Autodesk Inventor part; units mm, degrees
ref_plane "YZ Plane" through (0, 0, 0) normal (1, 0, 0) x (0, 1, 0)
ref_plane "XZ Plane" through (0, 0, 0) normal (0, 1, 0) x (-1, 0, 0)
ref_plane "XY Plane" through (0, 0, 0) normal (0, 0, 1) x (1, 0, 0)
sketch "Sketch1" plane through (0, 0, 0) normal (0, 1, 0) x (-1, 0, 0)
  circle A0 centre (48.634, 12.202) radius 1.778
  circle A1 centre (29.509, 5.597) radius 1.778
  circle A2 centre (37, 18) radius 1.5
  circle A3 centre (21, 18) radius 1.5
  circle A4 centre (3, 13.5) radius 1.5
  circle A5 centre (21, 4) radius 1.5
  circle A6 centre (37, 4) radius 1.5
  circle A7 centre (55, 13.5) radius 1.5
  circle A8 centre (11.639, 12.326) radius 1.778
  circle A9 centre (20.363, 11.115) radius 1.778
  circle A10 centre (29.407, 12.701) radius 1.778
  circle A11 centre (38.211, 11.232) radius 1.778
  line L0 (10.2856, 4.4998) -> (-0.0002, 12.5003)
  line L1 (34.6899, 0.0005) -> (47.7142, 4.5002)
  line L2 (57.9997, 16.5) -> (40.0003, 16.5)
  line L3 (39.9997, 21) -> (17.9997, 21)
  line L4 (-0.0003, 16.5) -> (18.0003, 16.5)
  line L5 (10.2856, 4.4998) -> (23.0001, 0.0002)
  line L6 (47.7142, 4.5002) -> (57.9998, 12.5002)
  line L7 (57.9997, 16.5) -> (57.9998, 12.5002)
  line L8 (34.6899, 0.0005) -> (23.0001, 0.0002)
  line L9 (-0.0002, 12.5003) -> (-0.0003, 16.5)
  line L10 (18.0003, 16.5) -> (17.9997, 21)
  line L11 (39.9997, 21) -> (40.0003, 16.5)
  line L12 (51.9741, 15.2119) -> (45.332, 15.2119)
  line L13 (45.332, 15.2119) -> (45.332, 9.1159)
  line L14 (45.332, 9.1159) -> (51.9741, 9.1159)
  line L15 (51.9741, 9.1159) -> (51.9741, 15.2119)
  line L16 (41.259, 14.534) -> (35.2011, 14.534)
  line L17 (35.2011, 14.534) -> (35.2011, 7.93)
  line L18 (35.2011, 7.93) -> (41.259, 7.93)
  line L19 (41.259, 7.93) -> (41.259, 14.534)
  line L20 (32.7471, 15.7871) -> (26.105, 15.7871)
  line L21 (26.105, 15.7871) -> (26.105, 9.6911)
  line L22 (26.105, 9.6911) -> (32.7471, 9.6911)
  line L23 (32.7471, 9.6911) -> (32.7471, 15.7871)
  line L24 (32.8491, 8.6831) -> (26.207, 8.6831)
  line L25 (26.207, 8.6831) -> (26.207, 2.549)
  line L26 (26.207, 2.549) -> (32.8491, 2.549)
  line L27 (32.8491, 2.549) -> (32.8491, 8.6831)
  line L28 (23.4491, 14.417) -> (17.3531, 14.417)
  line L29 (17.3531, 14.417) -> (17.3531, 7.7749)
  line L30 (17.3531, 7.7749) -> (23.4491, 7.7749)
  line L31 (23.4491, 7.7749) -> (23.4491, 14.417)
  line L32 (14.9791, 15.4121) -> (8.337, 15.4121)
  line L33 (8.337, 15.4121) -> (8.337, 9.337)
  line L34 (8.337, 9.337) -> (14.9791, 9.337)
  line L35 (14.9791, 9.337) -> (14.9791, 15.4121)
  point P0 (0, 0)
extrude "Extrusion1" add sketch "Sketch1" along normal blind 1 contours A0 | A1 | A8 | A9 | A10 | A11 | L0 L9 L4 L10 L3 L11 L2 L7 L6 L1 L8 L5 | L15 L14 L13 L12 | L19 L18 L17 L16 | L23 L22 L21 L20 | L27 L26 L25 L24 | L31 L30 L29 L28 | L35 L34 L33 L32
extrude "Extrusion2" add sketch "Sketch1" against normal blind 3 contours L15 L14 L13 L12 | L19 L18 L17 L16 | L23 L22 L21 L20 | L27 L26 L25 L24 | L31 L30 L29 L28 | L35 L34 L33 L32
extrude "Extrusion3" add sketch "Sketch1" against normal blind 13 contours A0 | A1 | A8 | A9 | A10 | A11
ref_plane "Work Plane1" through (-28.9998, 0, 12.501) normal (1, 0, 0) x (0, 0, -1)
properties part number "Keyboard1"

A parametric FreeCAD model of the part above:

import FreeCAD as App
import Part
import Sketcher
Q = App.Units.Quantity

doc = App.newDocument("Part")
body = doc.addObject("PartDesign::Body", "Body")

# Sketch on XZ plane
sketch1 = doc.addObject("Sketcher::SketchObject", "Sketch")
body.addObject(sketch1)
sketch1.AttachmentSupport = (doc.XZ_Plane, [""])
sketch1.MapMode = "FlatFace"
sketch1.addGeometry([
    Part.LineSegment(App.Vector(0, 12.5, 0), App.Vector(-10.3, 4.5, 0)),  # 0
    Part.LineSegment(App.Vector(-10.3, 4.5, 0), App.Vector(-23, 0, 0)),  # 1
    Part.LineSegment(App.Vector(-23, 0, 0), App.Vector(-34.7, 0, 0)),  # 2
    Part.LineSegment(App.Vector(-34.7, 0, 0), App.Vector(-47.7, 4.5, 0)),  # 3
    Part.LineSegment(App.Vector(-47.7, 4.5, 0), App.Vector(-58, 12.5, 0)),  # 4
    Part.LineSegment(App.Vector(-58, 12.5, 0), App.Vector(-58, 16.5, 0)),  # 5
    Part.LineSegment(App.Vector(-58, 16.5, 0), App.Vector(-40, 16.5, 0)),  # 6
    Part.LineSegment(App.Vector(-40, 16.5, 0), App.Vector(-40, 21, 0)),  # 7
    Part.LineSegment(App.Vector(-40, 21, 0), App.Vector(-18, 21, 0)),  # 8
    Part.LineSegment(App.Vector(-18, 21, 0), App.Vector(-18, 16.5, 0)),  # 9
    Part.LineSegment(App.Vector(-18, 16.5, 0), App.Vector(0, 16.5, 0)),  # 10
    Part.LineSegment(App.Vector(0, 16.5, 0), App.Vector(0, 12.5, 0)),  # 11
    Part.Circle(App.Vector(-21, 4, 0), App.Vector(0, 0, 1), 1.5),  # 12
    Part.Circle(App.Vector(-37, 4, 0), App.Vector(0, 0, 1), 1.5),  # 13
    Part.Circle(App.Vector(-3, 13.5, 0), App.Vector(0, 0, 1), 1.5),  # 14
    Part.Circle(App.Vector(-21, 18, 0), App.Vector(0, 0, 1), 1.5),  # 15
    Part.Circle(App.Vector(-55, 13.5, 0), App.Vector(0, 0, 1), 1.5),  # 16
    Part.Circle(App.Vector(-37, 18, 0), App.Vector(0, 0, 1), 1.5),  # 17
], False)
sketch1.addConstraint([
    Sketcher.Constraint("Coincident", 0, 2, 1, 1),
    Sketcher.Constraint("Coincident", 1, 2, 2, 1),
    Sketcher.Constraint("Coincident", 2, 2, 3, 1),
    Sketcher.Constraint("Coincident", 3, 2, 4, 1),
    Sketcher.Constraint("Coincident", 4, 2, 5, 1),
    Sketcher.Constraint("Coincident", 5, 2, 6, 1),
    Sketcher.Constraint("Coincident", 6, 2, 7, 1),
    Sketcher.Constraint("Coincident", 7, 2, 8, 1),
    Sketcher.Constraint("Coincident", 8, 2, 9, 1),
    Sketcher.Constraint("Coincident", 9, 2, 10, 1),
    Sketcher.Constraint("Coincident", 10, 2, 11, 1),
    Sketcher.Constraint("Coincident", 11, 2, 0, 1),
    Sketcher.Constraint("Vertical", 5),
    Sketcher.Constraint("Horizontal", 6),
    Sketcher.Constraint("Horizontal", 8),
    Sketcher.Constraint("Horizontal", 10),
    Sketcher.Constraint("Vertical", 11),
    Sketcher.Constraint("Equal", 12, 13),
    Sketcher.Constraint("Equal", 13, 14),
    Sketcher.Constraint("Equal", 14, 15),
    Sketcher.Constraint("Equal", 15, 16),
    Sketcher.Constraint("Equal", 16, 17),
    Sketcher.Constraint("Perpendicular", 2, 7),
    Sketcher.Constraint("Parallel", 7, 9),
    Sketcher.Constraint("Horizontal", 12, 3, 13, 3),
    Sketcher.Constraint("Horizontal", 14, 3, 16, 3),
    Sketcher.Constraint("Horizontal", 15, 3, 17, 3),
    Sketcher.Constraint("Horizontal", 6, 2, 9, 2),
    Sketcher.Constraint("Horizontal", 4, 2, 11, 2),
    Sketcher.Constraint("Vertical", 12, 3, 15, 3),
    Sketcher.Constraint("Vertical", 13, 3, 17, 3),
    Sketcher.Constraint("DistanceY", -1, 1, 1, 2, Q("0 in")),
    Sketcher.Constraint("DistanceX", -1, 1, 10, 2, Q("0 in")),
    Sketcher.Constraint("DistanceY", 1, 2, 2, 2, Q("0 in")),
    Sketcher.Constraint("Diameter", 12, Q("0.1181 in")),
    Sketcher.Constraint("Angle", 3, Q("160.9407 deg")),
    Sketcher.Constraint("Distance", 1, Q("0.531 in")),
    Sketcher.Constraint("Distance", 4, Q("0.513 in")),
    Sketcher.Constraint("DistanceX", 3, 2, 1, 2, Q("0.973 in")),
    Sketcher.Constraint("Distance", 3, Q("0.5425 in")),
    Sketcher.Constraint("DistanceX", 6, 1, 6, 2, Q("17.9994 mm")),
    Sketcher.Constraint("DistanceX", 8, 1, 8, 2, Q("22 mm")),
    Sketcher.Constraint("DistanceX", 10, 1, 10, 2, Q("18.0006 mm")),
    Sketcher.Constraint("DistanceY", 5, 1, 5, 2, Q("3.9998 mm")),
    Sketcher.Constraint("DistanceX", 13, 3, -1, 1, Q("1.4567 in")),
    Sketcher.Constraint("DistanceX", 14, 3, -1, 1, Q("0.1181 in")),
    Sketcher.Constraint("DistanceY", -1, 1, 14, 3, Q("0.5315 in")),
    Sketcher.Constraint("DistanceX", 3, 2, -1, 1, Q("1.8785 in")),
    Sketcher.Constraint("DistanceY", 0, 2, 15, 3, Q("0.5315 in")),
    Sketcher.Constraint("DistanceY", 13, 3, 3, 2, Q("0.0197 in")),
    Sketcher.Constraint("DistanceY", 3, 2, 17, 3, Q("0.5315 in")),
    Sketcher.Constraint("DistanceX", 4, 2, 16, 3, Q("0.1181 in")),
    Sketcher.Constraint("DistanceY", 17, 3, 7, 2, Q("0.1181 in")),
    Sketcher.Constraint("DistanceX", 15, 3, 9, 2, Q("0.1181 in")),
])
pad1 = doc.addObject("PartDesign::Pad", "Pad")
body.addObject(pad1)
pad1.Profile = sketch1
pad1.Length = 1
pad1.Reversed = True

# Sketch on XZ plane
sketch2 = doc.addObject("Sketcher::SketchObject", "Sketch001")
body.addObject(sketch2)
sketch2.AttachmentSupport = (doc.XZ_Plane, [""])
sketch2.MapMode = "FlatFace"
sketch2.addGeometry([
    Part.LineSegment(App.Vector(-52, 9.1, 0), App.Vector(-52, 15.2, 0)),  # 0
    Part.LineSegment(App.Vector(-52, 15.2, 0), App.Vector(-45.3, 15.2, 0)),  # 1
    Part.LineSegment(App.Vector(-45.3, 15.2, 0), App.Vector(-45.3, 9.1, 0)),  # 2
    Part.LineSegment(App.Vector(-45.3, 9.1, 0), App.Vector(-52, 9.1, 0)),  # 3
    Part.Circle(App.Vector(-48.6, 12.2, 0), App.Vector(0, 0, 1), 1.8),  # 4
    Part.LineSegment(App.Vector(-41.3, 7.9, 0), App.Vector(-41.3, 14.5, 0)),  # 5
    Part.LineSegment(App.Vector(-41.3, 14.5, 0), App.Vector(-35.2, 14.5, 0)),  # 6
    Part.LineSegment(App.Vector(-35.2, 14.5, 0), App.Vector(-35.2, 7.9, 0)),  # 7
    Part.LineSegment(App.Vector(-35.2, 7.9, 0), App.Vector(-41.3, 7.9, 0)),  # 8
    Part.Circle(App.Vector(-38.2, 11.2, 0), App.Vector(0, 0, 1), 1.8),  # 9
    Part.LineSegment(App.Vector(-32.7, 9.7, 0), App.Vector(-32.7, 15.8, 0)),  # 10
    Part.LineSegment(App.Vector(-32.7, 15.8, 0), App.Vector(-26.1, 15.8, 0)),  # 11
    Part.LineSegment(App.Vector(-26.1, 15.8, 0), App.Vector(-26.1, 9.7, 0)),  # 12
    Part.LineSegment(App.Vector(-26.1, 9.7, 0), App.Vector(-32.7, 9.7, 0)),  # 13
    Part.Circle(App.Vector(-29.4, 12.7, 0), App.Vector(0, 0, 1), 1.8),  # 14
    Part.LineSegment(App.Vector(-32.8, 2.5, 0), App.Vector(-32.8, 8.7, 0)),  # 15
    Part.LineSegment(App.Vector(-32.8, 8.7, 0), App.Vector(-26.2, 8.7, 0)),  # 16
    Part.LineSegment(App.Vector(-26.2, 8.7, 0), App.Vector(-26.2, 2.5, 0)),  # 17
    Part.LineSegment(App.Vector(-26.2, 2.5, 0), App.Vector(-32.8, 2.5, 0)),  # 18
    Part.Circle(App.Vector(-29.5, 5.6, 0), App.Vector(0, 0, 1), 1.8),  # 19
    Part.LineSegment(App.Vector(-23.4, 7.8, 0), App.Vector(-23.4, 14.4, 0)),  # 20
    Part.LineSegment(App.Vector(-23.4, 14.4, 0), App.Vector(-17.4, 14.4, 0)),  # 21
    Part.LineSegment(App.Vector(-17.4, 14.4, 0), App.Vector(-17.4, 7.8, 0)),  # 22
    Part.LineSegment(App.Vector(-17.4, 7.8, 0), App.Vector(-23.4, 7.8, 0)),  # 23
    Part.Circle(App.Vector(-20.4, 11.1, 0), App.Vector(0, 0, 1), 1.8),  # 24
    Part.LineSegment(App.Vector(-15, 9.3, 0), App.Vector(-15, 15.4, 0)),  # 25
    Part.LineSegment(App.Vector(-15, 15.4, 0), App.Vector(-8.3, 15.4, 0)),  # 26
    Part.LineSegment(App.Vector(-8.3, 15.4, 0), App.Vector(-8.3, 9.3, 0)),  # 27
    Part.LineSegment(App.Vector(-8.3, 9.3, 0), App.Vector(-15, 9.3, 0)),  # 28
    Part.Circle(App.Vector(-11.6, 12.3, 0), App.Vector(0, 0, 1), 1.8),  # 29
], False)
sketch2.addConstraint([
    Sketcher.Constraint("Coincident", 0, 2, 1, 1),
    Sketcher.Constraint("Coincident", 1, 2, 2, 1),
    Sketcher.Constraint("Coincident", 2, 2, 3, 1),
    Sketcher.Constraint("Coincident", 3, 2, 0, 1),
    Sketcher.Constraint("Coincident", 5, 2, 6, 1),
    Sketcher.Constraint("Coincident", 6, 2, 7, 1),
    Sketcher.Constraint("Coincident", 7, 2, 8, 1),
    Sketcher.Constraint("Coincident", 8, 2, 5, 1),
    Sketcher.Constraint("Coincident", 10, 2, 11, 1),
    Sketcher.Constraint("Coincident", 11, 2, 12, 1),
    Sketcher.Constraint("Coincident", 12, 2, 13, 1),
    Sketcher.Constraint("Coincident", 13, 2, 10, 1),
    Sketcher.Constraint("Coincident", 15, 2, 16, 1),
    Sketcher.Constraint("Coincident", 16, 2, 17, 1),
    Sketcher.Constraint("Coincident", 17, 2, 18, 1),
    Sketcher.Constraint("Coincident", 18, 2, 15, 1),
    Sketcher.Constraint("Coincident", 20, 2, 21, 1),
    Sketcher.Constraint("Coincident", 21, 2, 22, 1),
    Sketcher.Constraint("Coincident", 22, 2, 23, 1),
    Sketcher.Constraint("Coincident", 23, 2, 20, 1),
    Sketcher.Constraint("Coincident", 25, 2, 26, 1),
    Sketcher.Constraint("Coincident", 26, 2, 27, 1),
    Sketcher.Constraint("Coincident", 27, 2, 28, 1),
    Sketcher.Constraint("Coincident", 28, 2, 25, 1),
    Sketcher.Constraint("Vertical", 0),
    Sketcher.Constraint("Horizontal", 1),
    Sketcher.Constraint("Vertical", 2),
    Sketcher.Constraint("Horizontal", 3),
    Sketcher.Constraint("Vertical", 5),
    Sketcher.Constraint("Horizontal", 6),
    Sketcher.Constraint("Vertical", 7),
    Sketcher.Constraint("Horizontal", 8),
    Sketcher.Constraint("Vertical", 10),
    Sketcher.Constraint("Horizontal", 11),
    Sketcher.Constraint("Vertical", 12),
    Sketcher.Constraint("Horizontal", 13),
    Sketcher.Constraint("Vertical", 15),
    Sketcher.Constraint("Horizontal", 16),
    Sketcher.Constraint("Vertical", 17),
    Sketcher.Constraint("Horizontal", 18),
    Sketcher.Constraint("Vertical", 20),
    Sketcher.Constraint("Horizontal", 21),
    Sketcher.Constraint("Vertical", 22),
    Sketcher.Constraint("Horizontal", 23),
    Sketcher.Constraint("Vertical", 25),
    Sketcher.Constraint("Horizontal", 26),
    Sketcher.Constraint("Vertical", 27),
    Sketcher.Constraint("Horizontal", 28),
    Sketcher.Constraint("Equal", 4, 9),
    Sketcher.Constraint("Equal", 9, 14),
    Sketcher.Constraint("Equal", 14, 19),
    Sketcher.Constraint("Equal", 19, 24),
    Sketcher.Constraint("Equal", 24, 29),
    Sketcher.Constraint("Equal", 3, 11),
    Sketcher.Constraint("Equal", 13, 16),
    Sketcher.Constraint("Equal", 18, 26),
    Sketcher.Constraint("Equal", 23, 0),
    Sketcher.Constraint("Equal", 2, 10),
    Sketcher.Constraint("Equal", 28, 20),
    Sketcher.Constraint("Diameter", 4, Q("0.14 in")),
    Sketcher.Constraint("DistanceX", 21, 1, 21, 2, Q("0.24 in")),
    Sketcher.Constraint("DistanceY", 5, 1, 5, 2, Q("0.26 in")),
    Sketcher.Constraint("DistanceY", 27, 2, 21, 2, Q("0.2 in")),
    Sketcher.Constraint("DistanceX", 4, 3, 1, 2, Q("0.13 in")),
    Sketcher.Constraint("DistanceX", 5, 2, 9, 3, Q("0.12 in")),
    Sketcher.Constraint("DistanceY", 9, 3, 5, 2, Q("0.13 in")),
    Sketcher.Constraint("DistanceX", 14, 3, 11, 2, Q("0.13 in")),
    Sketcher.Constraint("DistanceX", 19, 3, 16, 2, Q("0.13 in")),
    Sketcher.Constraint("DistanceY", 17, 2, 19, 3, Q("0.12 in")),
    Sketcher.Constraint("DistanceY", 24, 3, 20, 2, Q("0.13 in")),
    Sketcher.Constraint("DistanceX", 29, 3, 26, 2, Q("0.13 in")),
    Sketcher.Constraint("DistanceX", 1, 1, 1, 2, Q("0.2615 in")),
    Sketcher.Constraint("DistanceX", 6, 1, 6, 2, Q("0.2385 in")),
    Sketcher.Constraint("DistanceY", 15, 1, 15, 2, Q("0.2415 in")),
    Sketcher.Constraint("DistanceY", 25, 1, 25, 2, Q("6.075 mm")),
    Sketcher.Constraint("DistanceY", -1, 1, 4, 3, Q("0.4804 in")),
    Sketcher.Constraint("DistanceY", -1, 1, 9, 3, Q("0.4422 in")),
    Sketcher.Constraint("DistanceX", 24, 3, -1, 1, Q("0.8017 in")),
    Sketcher.Constraint("DistanceY", -1, 1, 24, 3, Q("0.4376 in")),
    Sketcher.Constraint("DistanceY", -1, 1, 0, 2, Q("0.5989 in")),
    Sketcher.Constraint("DistanceX", 20, 2, -1, 1, Q("0.9232 in")),
    Sketcher.Constraint("DistanceX", 9, 3, 19, 3, Q("0.3426 in")),
    Sketcher.Constraint("DistanceX", 4, 3, 29, 3, Q("1.4565 in")),
    Sketcher.Constraint("DistanceY", 14, 3, 10, 2, Q("0.1215 in")),
    Sketcher.Constraint("DistanceY", 29, 3, 25, 2, Q("0.1215 in")),
    Sketcher.Constraint("DistanceX", 4, 3, -1, 1, Q("48.634 mm")),
    Sketcher.Constraint("DistanceX", 9, 3, -1, 1, Q("38.211 mm")),
    Sketcher.Constraint("DistanceX", 14, 3, -1, 1, Q("29.407 mm")),
    Sketcher.Constraint("DistanceY", -1, 1, 14, 3, Q("12.701 mm")),
    Sketcher.Constraint("DistanceY", -1, 1, 19, 3, Q("5.597 mm")),
])
pad2 = doc.addObject("PartDesign::Pad", "Pad001")
body.addObject(pad2)
pad2.Profile = sketch2
pad2.Length = Q("0.1181102 in")

# Sketch on XZ plane
sketch3 = doc.addObject("Sketcher::SketchObject", "Sketch002")
body.addObject(sketch3)
sketch3.AttachmentSupport = (doc.XZ_Plane, [""])
sketch3.MapMode = "FlatFace"
sketch3.addGeometry([
    Part.Circle(App.Vector(-48.6, 12.2, 0), App.Vector(0, 0, 1), 1.8),  # 0
    Part.Circle(App.Vector(-29.5, 5.6, 0), App.Vector(0, 0, 1), 1.8),  # 1
    Part.Circle(App.Vector(-11.6, 12.3, 0), App.Vector(0, 0, 1), 1.8),  # 2
    Part.Circle(App.Vector(-20.4, 11.1, 0), App.Vector(0, 0, 1), 1.8),  # 3
    Part.Circle(App.Vector(-29.4, 12.7, 0), App.Vector(0, 0, 1), 1.8),  # 4
    Part.Circle(App.Vector(-38.2, 11.2, 0), App.Vector(0, 0, 1), 1.8),  # 5
], False)
sketch3.addConstraint([
    Sketcher.Constraint("Equal", 0, 1),
    Sketcher.Constraint("Equal", 1, 2),
    Sketcher.Constraint("Equal", 2, 3),
    Sketcher.Constraint("Equal", 3, 4),
    Sketcher.Constraint("Equal", 4, 5),
    Sketcher.Constraint("Diameter", 0, Q("0.14 in")),
    Sketcher.Constraint("DistanceY", -1, 1, 0, 3, Q("0.4804 in")),
    Sketcher.Constraint("DistanceX", 3, 3, -1, 1, Q("0.8017 in")),
    Sketcher.Constraint("DistanceY", -1, 1, 3, 3, Q("0.4376 in")),
    Sketcher.Constraint("DistanceY", -1, 1, 5, 3, Q("0.4422 in")),
    Sketcher.Constraint("DistanceX", 0, 3, 2, 3, Q("1.4565 in")),
    Sketcher.Constraint("DistanceX", 5, 3, 1, 3, Q("0.3426 in")),
    Sketcher.Constraint("DistanceX", 0, 3, -1, 1, Q("48.634 mm")),
    Sketcher.Constraint("DistanceX", 1, 3, -1, 1, Q("29.509 mm")),
    Sketcher.Constraint("DistanceY", -1, 1, 1, 3, Q("5.597 mm")),
    Sketcher.Constraint("DistanceY", -1, 1, 2, 3, Q("12.326 mm")),
    Sketcher.Constraint("DistanceX", 4, 3, -1, 1, Q("29.407 mm")),
    Sketcher.Constraint("DistanceY", -1, 1, 4, 3, Q("12.701 mm")),
])
pad3 = doc.addObject("PartDesign::Pad", "Pad002")
body.addObject(pad3)
pad3.Profile = sketch3
pad3.Length = Q("0.511811 in")

doc.recompute()
